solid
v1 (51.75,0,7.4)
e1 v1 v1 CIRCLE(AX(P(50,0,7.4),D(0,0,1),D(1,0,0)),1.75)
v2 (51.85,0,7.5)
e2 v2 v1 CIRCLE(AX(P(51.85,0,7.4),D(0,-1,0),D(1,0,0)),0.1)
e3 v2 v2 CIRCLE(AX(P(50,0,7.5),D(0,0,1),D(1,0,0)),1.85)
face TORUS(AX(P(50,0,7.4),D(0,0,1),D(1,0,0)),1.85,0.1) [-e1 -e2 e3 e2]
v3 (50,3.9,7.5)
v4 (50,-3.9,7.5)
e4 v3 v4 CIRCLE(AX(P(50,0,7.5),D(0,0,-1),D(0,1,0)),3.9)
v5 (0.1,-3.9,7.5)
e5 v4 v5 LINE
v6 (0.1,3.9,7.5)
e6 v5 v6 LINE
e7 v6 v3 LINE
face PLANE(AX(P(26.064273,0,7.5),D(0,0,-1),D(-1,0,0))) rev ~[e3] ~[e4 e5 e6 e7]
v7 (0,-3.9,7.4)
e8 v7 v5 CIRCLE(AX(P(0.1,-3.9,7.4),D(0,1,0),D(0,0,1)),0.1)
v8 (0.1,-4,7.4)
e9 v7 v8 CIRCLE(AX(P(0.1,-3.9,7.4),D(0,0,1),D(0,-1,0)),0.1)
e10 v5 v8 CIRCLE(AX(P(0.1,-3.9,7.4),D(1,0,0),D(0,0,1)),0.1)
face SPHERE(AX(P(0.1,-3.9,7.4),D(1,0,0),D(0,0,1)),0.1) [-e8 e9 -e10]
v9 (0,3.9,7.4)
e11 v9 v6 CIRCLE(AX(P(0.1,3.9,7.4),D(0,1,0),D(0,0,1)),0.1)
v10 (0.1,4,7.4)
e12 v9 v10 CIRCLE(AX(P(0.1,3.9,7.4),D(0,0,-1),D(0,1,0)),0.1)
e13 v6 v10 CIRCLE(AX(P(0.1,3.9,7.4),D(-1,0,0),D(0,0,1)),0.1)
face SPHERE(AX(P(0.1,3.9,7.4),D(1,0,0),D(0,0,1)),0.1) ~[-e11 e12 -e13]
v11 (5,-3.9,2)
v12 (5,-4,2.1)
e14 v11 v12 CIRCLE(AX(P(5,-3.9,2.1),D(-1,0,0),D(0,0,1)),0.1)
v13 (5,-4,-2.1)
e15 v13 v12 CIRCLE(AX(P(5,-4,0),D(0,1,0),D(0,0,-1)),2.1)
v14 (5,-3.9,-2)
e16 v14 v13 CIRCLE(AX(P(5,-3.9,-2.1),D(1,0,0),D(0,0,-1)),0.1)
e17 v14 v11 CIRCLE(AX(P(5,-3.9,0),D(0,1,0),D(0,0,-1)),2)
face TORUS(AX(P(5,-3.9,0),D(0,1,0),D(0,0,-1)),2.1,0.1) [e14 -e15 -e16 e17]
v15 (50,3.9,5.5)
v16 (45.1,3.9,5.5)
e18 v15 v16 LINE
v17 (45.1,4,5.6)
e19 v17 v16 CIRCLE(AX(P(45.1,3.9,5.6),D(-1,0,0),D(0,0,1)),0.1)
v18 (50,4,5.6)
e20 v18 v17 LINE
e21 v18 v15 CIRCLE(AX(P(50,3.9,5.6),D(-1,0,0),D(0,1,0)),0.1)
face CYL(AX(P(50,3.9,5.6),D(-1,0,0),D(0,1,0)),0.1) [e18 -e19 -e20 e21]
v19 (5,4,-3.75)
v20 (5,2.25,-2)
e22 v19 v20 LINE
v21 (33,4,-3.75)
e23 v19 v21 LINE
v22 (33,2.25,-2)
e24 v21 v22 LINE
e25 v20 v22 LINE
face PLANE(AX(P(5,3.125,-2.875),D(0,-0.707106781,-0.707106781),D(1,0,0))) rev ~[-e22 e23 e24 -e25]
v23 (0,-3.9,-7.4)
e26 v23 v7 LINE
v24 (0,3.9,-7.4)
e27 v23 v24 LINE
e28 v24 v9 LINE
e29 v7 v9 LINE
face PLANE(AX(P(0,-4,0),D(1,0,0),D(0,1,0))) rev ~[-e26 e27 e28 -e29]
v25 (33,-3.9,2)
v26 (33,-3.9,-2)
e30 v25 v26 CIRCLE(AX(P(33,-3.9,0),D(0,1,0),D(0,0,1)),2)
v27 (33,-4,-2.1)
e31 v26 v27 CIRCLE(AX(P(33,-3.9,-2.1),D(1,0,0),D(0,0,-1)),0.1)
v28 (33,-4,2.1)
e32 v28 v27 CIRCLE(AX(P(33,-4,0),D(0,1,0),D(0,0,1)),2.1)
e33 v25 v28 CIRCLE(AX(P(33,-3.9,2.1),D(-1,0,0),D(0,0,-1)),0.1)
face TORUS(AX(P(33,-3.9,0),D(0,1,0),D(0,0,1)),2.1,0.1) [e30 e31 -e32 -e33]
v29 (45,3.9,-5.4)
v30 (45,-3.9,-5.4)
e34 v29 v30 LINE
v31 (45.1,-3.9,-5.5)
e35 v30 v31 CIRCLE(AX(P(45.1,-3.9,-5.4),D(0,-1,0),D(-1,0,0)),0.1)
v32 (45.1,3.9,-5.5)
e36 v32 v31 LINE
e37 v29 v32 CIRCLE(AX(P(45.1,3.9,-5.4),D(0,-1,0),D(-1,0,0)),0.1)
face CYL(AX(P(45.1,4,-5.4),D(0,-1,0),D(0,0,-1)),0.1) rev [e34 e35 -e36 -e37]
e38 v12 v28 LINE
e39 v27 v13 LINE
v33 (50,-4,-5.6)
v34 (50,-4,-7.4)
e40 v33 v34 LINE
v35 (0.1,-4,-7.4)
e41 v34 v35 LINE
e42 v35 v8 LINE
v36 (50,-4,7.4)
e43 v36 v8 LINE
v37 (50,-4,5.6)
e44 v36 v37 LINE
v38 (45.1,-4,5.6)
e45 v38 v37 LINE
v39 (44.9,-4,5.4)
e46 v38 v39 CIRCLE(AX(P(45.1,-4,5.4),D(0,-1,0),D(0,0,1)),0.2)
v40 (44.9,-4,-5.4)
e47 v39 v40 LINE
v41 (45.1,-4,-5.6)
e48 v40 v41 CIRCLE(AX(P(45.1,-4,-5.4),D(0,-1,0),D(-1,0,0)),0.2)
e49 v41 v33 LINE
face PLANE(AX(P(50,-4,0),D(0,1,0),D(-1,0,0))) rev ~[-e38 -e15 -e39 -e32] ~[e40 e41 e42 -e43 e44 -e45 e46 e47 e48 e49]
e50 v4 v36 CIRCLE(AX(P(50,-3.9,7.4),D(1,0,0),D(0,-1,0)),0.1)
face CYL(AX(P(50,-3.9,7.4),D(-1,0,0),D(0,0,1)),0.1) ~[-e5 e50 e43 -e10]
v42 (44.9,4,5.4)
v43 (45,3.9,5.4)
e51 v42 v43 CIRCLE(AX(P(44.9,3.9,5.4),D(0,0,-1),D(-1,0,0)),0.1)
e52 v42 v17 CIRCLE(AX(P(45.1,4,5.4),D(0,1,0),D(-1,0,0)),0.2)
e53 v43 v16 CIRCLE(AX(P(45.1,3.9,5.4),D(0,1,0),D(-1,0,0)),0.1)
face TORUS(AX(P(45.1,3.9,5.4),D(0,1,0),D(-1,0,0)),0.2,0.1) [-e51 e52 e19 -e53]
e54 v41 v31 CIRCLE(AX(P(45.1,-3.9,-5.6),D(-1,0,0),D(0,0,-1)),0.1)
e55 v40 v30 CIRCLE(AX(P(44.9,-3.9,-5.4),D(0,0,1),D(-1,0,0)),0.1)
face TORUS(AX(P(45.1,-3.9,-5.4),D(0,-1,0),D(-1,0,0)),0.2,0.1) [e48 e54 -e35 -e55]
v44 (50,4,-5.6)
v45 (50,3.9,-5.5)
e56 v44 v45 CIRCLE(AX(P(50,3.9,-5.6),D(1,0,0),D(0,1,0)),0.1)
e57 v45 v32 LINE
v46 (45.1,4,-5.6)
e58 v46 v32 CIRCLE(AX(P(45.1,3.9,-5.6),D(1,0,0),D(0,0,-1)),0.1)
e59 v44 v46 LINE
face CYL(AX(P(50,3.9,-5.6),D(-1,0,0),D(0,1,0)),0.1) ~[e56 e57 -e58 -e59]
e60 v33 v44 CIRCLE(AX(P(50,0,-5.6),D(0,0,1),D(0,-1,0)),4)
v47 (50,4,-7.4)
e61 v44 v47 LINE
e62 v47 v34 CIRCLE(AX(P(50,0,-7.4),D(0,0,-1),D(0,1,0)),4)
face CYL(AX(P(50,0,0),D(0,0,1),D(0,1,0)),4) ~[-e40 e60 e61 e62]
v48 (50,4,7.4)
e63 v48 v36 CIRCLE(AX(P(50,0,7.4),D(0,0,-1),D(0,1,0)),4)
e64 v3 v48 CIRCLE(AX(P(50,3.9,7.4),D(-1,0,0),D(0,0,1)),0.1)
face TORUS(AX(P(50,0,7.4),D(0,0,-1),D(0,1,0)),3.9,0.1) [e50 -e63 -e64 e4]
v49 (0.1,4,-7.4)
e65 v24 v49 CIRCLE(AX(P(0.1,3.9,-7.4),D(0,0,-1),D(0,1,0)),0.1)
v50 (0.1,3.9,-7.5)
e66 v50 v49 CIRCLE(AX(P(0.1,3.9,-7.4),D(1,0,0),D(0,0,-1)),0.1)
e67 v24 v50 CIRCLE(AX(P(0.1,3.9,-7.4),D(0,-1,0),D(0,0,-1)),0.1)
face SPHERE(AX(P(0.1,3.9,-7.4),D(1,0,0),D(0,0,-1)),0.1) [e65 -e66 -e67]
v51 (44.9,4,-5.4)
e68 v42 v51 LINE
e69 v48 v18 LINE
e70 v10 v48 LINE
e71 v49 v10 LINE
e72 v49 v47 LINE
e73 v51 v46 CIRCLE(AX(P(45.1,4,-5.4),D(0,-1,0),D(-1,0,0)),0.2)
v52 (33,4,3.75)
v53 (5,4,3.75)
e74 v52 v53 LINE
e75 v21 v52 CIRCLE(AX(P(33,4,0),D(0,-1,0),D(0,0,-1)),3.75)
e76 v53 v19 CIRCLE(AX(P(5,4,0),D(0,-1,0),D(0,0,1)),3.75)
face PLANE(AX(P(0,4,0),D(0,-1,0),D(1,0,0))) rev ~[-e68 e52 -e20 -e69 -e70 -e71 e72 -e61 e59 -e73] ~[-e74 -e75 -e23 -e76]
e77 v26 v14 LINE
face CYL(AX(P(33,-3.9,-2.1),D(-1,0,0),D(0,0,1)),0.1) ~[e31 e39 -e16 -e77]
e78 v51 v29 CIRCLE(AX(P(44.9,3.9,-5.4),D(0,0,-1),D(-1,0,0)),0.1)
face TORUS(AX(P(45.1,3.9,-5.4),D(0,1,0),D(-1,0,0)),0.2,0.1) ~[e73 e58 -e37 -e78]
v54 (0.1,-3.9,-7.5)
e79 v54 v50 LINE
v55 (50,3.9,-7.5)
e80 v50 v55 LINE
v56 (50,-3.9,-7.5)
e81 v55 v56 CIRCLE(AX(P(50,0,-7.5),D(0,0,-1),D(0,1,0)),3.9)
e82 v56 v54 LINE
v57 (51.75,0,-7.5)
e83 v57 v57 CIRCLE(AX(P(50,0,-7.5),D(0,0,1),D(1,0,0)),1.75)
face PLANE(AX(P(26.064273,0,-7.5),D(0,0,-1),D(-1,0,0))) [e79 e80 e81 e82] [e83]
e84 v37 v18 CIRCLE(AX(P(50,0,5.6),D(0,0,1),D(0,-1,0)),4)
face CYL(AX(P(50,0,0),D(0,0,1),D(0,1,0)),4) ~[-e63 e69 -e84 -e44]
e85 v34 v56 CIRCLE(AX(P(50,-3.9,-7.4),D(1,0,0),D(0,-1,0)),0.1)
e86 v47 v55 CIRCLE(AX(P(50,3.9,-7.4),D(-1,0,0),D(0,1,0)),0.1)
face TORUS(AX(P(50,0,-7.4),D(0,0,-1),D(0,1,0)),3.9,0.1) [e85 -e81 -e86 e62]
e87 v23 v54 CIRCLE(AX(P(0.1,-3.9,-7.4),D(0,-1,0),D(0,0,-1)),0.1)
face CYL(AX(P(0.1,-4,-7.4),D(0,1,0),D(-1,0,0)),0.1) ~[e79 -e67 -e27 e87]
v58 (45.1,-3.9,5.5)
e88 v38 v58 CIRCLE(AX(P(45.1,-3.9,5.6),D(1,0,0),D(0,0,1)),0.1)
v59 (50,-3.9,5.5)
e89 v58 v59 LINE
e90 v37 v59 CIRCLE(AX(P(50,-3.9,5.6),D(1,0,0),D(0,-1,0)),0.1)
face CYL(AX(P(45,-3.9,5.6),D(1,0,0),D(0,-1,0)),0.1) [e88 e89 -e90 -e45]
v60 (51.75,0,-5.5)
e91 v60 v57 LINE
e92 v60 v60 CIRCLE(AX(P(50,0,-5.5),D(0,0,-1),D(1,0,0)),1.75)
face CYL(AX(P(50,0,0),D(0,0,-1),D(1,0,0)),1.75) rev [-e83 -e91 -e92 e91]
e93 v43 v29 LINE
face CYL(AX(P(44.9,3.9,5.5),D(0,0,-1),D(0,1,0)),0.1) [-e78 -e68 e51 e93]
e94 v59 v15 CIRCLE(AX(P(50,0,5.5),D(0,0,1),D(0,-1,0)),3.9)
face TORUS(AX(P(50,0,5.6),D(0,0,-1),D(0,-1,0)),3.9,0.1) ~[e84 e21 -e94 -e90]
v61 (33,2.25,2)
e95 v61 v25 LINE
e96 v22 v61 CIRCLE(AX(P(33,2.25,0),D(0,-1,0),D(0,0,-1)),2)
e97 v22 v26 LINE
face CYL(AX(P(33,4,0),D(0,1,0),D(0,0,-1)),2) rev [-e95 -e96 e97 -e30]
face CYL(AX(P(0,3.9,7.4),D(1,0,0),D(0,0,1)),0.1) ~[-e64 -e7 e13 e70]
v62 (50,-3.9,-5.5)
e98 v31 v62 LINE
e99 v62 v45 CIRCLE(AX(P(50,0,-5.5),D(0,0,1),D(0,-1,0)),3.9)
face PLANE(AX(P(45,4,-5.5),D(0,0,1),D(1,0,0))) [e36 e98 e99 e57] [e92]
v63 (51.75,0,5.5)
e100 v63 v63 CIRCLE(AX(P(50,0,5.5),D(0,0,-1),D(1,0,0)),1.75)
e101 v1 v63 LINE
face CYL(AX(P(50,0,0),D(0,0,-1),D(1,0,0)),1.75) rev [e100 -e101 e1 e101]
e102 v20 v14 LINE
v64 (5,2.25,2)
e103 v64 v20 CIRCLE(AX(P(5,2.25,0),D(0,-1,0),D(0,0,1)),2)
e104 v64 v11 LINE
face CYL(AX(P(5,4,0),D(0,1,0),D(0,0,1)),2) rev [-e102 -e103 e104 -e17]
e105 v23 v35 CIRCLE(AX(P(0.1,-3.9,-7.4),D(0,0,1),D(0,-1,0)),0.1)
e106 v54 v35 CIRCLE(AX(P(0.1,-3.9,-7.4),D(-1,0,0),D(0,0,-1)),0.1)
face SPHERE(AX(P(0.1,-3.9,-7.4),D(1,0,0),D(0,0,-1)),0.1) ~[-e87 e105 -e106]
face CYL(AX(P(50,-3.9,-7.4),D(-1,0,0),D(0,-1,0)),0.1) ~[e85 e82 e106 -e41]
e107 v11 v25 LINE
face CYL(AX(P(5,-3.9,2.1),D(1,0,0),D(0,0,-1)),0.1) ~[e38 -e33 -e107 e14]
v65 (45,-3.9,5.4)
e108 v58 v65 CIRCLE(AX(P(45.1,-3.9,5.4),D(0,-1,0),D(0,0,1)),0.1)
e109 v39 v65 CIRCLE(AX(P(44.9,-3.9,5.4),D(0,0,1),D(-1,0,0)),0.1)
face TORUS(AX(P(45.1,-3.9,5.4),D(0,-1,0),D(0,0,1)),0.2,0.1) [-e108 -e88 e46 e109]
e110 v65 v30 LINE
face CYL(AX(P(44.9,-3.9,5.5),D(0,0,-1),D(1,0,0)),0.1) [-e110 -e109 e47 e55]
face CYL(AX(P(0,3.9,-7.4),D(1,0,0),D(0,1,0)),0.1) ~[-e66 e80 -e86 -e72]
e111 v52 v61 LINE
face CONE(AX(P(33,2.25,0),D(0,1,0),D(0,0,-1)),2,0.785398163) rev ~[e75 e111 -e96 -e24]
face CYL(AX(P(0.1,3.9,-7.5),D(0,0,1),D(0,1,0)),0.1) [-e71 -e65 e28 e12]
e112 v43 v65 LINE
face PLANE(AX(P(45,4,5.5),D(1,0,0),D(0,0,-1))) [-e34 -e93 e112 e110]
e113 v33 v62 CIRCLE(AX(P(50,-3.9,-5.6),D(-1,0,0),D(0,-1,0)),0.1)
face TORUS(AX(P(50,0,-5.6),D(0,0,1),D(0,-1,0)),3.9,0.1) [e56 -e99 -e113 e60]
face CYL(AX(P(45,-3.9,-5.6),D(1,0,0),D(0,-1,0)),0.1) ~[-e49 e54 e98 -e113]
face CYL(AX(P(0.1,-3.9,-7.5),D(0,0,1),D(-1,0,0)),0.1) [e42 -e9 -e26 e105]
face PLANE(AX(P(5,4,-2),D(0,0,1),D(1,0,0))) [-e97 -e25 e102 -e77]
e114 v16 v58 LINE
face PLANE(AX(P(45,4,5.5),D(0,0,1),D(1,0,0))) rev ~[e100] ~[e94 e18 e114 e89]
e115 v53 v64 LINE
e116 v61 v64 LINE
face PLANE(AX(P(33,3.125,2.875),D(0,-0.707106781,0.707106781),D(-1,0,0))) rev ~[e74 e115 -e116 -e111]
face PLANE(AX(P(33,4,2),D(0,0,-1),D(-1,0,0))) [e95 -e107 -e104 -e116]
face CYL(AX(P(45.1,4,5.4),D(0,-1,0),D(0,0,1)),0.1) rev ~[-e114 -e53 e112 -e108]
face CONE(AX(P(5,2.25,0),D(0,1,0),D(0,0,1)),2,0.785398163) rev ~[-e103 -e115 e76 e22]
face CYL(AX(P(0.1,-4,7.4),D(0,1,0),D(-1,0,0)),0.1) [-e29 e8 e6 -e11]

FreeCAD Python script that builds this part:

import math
import FreeCAD as App
import Part
import Sketcher


def edges_at(feature, points):
    """Names of the edges that pass closest to the given points."""
    edges = feature.Shape.Edges
    near = lambda p: min(range(len(edges)), key=lambda i: edges[i].distToShape(Part.Vertex(*p))[0])
    return sorted({f"Edge{near(p) + 1}" for p in points})


def add_polygon(sketch, points):
    """Adds a closed chain of lines whose ends are joined by coincident constraints."""
    first, n = sketch.GeometryCount, len(points)
    for a, b in zip(points, points[1:] + points[:1]):
        sketch.addGeometry(Part.LineSegment(App.Vector(*a, 0), App.Vector(*b, 0)), False)
    for i in range(n):
        sketch.addConstraint(Sketcher.Constraint("Coincident", first + i, 2, first + (i + 1) % n, 1))

doc = App.newDocument("Part")
body = doc.addObject("PartDesign::Body", "Body")

# Sketch on XY plane
sketch1 = body.newObject("Sketcher::SketchObject", "Sketch")
sketch1.AttachmentSupport = (doc.getObject("XY_Plane"), [""])
sketch1.MapMode = "FlatFace"
sketch1.addGeometry([
    Part.LineSegment(App.Vector(50, 4, 0), App.Vector(0, 4, 0)),  # 0
    Part.LineSegment(App.Vector(0, 4, 0), App.Vector(0, -4, 0)),  # 1
    Part.LineSegment(App.Vector(0, -4, 0), App.Vector(50, -4, 0)),  # 2
    Part.ArcOfCircle(Part.Circle(App.Vector(50, 0, 0), App.Vector(0, 0, 1), 4), math.radians(-90), math.radians(90)),  # 3
    Part.Circle(App.Vector(50, 0, 0), App.Vector(0, 0, 1), 1.75),  # 4
], False)
sketch1.addConstraint([
    Sketcher.Constraint("Coincident", 0, 2, 1, 1),
    Sketcher.Constraint("Coincident", 1, 2, 2, 1),
    Sketcher.Constraint("Tangent", 2, 2, 3, 1),
    Sketcher.Constraint("Tangent", 3, 2, 0, 1),
    Sketcher.Constraint("Horizontal", 0),
    Sketcher.Constraint("Vertical", 1),
    Sketcher.Constraint("Horizontal", 2),
    Sketcher.Constraint("Coincident", 4, 3, 3, 3),
    Sketcher.Constraint("Symmetric", 0, 2, 1, 2, -1, 1),
    Sketcher.Constraint("Radius", 3, 4.0),
    Sketcher.Constraint("Diameter", 4, 3.5),
    Sketcher.Constraint("DistanceX", 0, 2, 0, 1, 50.0),
])
pad1 = body.newObject("PartDesign::Pad", "Pad")
pad1.Profile = sketch1
pad1.Length = 15
pad1.Midplane = True

# Sketch on XZ plane
sketch2 = body.newObject("Sketcher::SketchObject", "Sketch001")
sketch2.AttachmentSupport = (doc.getObject("XZ_Plane"), [""])
sketch2.MapMode = "FlatFace"
sketch2.AttachmentOffset = App.Placement(App.Vector(0, 0, -4), App.Rotation())
add_polygon(sketch2, [(45, -5.5), (45, 5.5), (54, 5.5), (54, -5.5)])  # lines 0-3
sketch2.addConstraint([
    Sketcher.Constraint("Vertical", 0),
    Sketcher.Constraint("Horizontal", 1),
    Sketcher.Constraint("Vertical", 2),
    Sketcher.Constraint("Horizontal", 3),
    Sketcher.Constraint("DistanceX", 1, 1, 1, 2, 9.0),
    Sketcher.Constraint("DistanceY", 0, 1, 0, 2, 11.0),
    Sketcher.Constraint("DistanceX", -1, 1, 0, 2, 45.0),
    Sketcher.Constraint("DistanceY", -1, 1, 0, 2, 5.5),
])
pocket1 = body.newObject("PartDesign::Pocket", "Pocket")
pocket1.Profile = sketch2
pocket1.Type = "ThroughAll"
pocket1.Reversed = True

# Sketch on XZ plane
sketch3 = body.newObject("Sketcher::SketchObject", "Sketch002")
sketch3.AttachmentSupport = (doc.getObject("XZ_Plane"), [""])
sketch3.MapMode = "FlatFace"
sketch3.AttachmentOffset = App.Placement(App.Vector(0, 0, -4), App.Rotation())
sketch3.addGeometry([
    Part.LineSegment(App.Vector(33, -2, 0), App.Vector(5, -2, 0)),
    Part.ArcOfCircle(Part.Circle(App.Vector(5, 0, 0), App.Vector(0, 0, 1), 2), math.radians(90), math.radians(270)),
    Part.LineSegment(App.Vector(5, 2, 0), App.Vector(33, 2, 0)),
    Part.ArcOfCircle(Part.Circle(App.Vector(33, 0, 0), App.Vector(0, 0, 1), 2), math.radians(-90), math.radians(90)),
], False)
sketch3.addConstraint([
    Sketcher.Constraint("Tangent", 0, 2, 1, 2),
    Sketcher.Constraint("Tangent", 1, 1, 2, 1),
    Sketcher.Constraint("Tangent", 2, 2, 3, 2),
    Sketcher.Constraint("Tangent", 3, 1, 0, 1),
    Sketcher.Constraint("Horizontal", 0),
    Sketcher.Constraint("Horizontal", 2),
    Sketcher.Constraint("PointOnObject", 1, 3, -1),
    Sketcher.Constraint("Radius", 1, 2.0),
    Sketcher.Constraint("DistanceX", 0, 2, 0, 1, 28.0),
    Sketcher.Constraint("DistanceX", -1, 1, 1, 3, 5.0),
])
pocket2 = body.newObject("PartDesign::Pocket", "Pocket001")
pocket2.Profile = sketch3
pocket2.Type = "ThroughAll"
pocket2.Reversed = True
doc.recompute()

fillet = body.newObject("PartDesign::Fillet", "Fillet")
fillet.Base = (pocket2, edges_at(pocket2, [
    (48.25, 0, 7.5),
    (54, 0, 7.5),
    (25, 4, 7.5),
    (54, 0, 5.5),
    (47.5, -4, 5.5),
    (54, 0, -5.5),
    (47.5, -4, -5.5),
    (45, 0, -5.5),
    (45, -4, 0),
    (45, 0, 5.5),
    (47.5, 4, 5.5),
    (47.5, 4, -5.5),
    (45, 4, 0),
    (0, 0, 7.5),
    (25, 4, -7.5),
    (3, -4, 0),
    (19, -4, -2),
    (35, -4, 0),
    (19, -4, 2),
    (54, 0, -7.5),
    (25, -4, -7.5),
    (0, 0, -7.5),
    (0, 4, 0),
    (0, -4, 0),
    (25, -4, 7.5),
]))
fillet.Radius = 0.1
doc.recompute()

chamfer = body.newObject("PartDesign::Chamfer", "Chamfer")
chamfer.Base = (fillet, edges_at(fillet, [
    (3, 4, 0),
    (19, 4, 2),
    (35, 4, 0),
    (19, 4, -2),
]))
chamfer.Size = 1.75

doc.recompute()
